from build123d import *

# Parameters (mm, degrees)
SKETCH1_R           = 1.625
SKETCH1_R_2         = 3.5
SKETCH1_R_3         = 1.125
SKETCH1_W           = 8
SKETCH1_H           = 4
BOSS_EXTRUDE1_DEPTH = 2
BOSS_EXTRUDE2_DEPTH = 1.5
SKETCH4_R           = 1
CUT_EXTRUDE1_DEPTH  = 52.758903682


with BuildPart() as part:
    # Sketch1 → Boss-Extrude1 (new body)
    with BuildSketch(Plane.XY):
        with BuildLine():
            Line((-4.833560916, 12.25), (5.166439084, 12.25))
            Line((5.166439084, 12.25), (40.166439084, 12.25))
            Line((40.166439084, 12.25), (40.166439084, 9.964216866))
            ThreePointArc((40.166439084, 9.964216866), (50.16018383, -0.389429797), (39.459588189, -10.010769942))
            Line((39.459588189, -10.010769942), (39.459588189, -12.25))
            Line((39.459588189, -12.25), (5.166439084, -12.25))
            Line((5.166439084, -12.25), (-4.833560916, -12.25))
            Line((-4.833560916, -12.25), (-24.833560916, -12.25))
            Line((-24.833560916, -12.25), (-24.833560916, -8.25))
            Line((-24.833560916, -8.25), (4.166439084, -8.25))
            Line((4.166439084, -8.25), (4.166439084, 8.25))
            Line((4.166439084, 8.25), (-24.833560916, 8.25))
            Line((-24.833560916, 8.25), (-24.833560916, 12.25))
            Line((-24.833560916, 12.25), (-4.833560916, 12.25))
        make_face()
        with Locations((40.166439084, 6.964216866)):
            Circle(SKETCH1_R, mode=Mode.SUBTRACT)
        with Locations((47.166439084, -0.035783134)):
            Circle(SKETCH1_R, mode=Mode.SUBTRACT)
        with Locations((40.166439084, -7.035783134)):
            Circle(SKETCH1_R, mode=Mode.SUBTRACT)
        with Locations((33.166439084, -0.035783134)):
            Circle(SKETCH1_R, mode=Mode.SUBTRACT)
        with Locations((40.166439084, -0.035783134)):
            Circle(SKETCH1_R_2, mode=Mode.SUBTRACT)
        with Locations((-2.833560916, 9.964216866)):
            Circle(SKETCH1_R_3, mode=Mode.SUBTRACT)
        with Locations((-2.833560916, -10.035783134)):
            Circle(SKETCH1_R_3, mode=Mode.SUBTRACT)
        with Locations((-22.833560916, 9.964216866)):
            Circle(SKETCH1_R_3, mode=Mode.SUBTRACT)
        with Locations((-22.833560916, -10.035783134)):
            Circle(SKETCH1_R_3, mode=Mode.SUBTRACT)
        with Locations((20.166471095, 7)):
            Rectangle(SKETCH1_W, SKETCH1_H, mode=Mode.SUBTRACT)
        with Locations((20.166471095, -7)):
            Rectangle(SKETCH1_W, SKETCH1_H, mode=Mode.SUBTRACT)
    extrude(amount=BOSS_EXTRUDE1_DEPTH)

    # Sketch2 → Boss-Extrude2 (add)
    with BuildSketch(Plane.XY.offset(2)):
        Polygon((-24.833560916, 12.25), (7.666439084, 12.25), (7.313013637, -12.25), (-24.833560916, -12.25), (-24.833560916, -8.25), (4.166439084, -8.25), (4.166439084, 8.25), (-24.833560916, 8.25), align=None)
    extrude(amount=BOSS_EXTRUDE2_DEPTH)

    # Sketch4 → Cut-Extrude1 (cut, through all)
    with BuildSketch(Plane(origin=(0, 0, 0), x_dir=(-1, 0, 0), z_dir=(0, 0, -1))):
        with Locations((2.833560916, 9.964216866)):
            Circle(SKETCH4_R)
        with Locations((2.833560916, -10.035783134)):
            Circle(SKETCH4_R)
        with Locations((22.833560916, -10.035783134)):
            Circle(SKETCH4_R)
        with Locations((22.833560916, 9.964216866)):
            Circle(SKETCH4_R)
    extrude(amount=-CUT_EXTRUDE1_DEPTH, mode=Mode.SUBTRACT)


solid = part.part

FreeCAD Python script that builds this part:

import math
import FreeCAD as App
import Part
import Sketcher


def add_polygon(sketch, points):
    """Adds a closed chain of lines whose ends are joined by coincident constraints."""
    first, n = sketch.GeometryCount, len(points)
    for a, b in zip(points, points[1:] + points[:1]):
        sketch.addGeometry(Part.LineSegment(App.Vector(*a, 0), App.Vector(*b, 0)), False)
    for i in range(n):
        sketch.addConstraint(Sketcher.Constraint("Coincident", first + i, 2, first + (i + 1) % n, 1))

doc = App.newDocument("Part")
body = doc.addObject("PartDesign::Body", "Body")

# Sketch on XY plane
sketch1 = doc.addObject("Sketcher::SketchObject", "Sketch")
body.addObject(sketch1)
sketch1.AttachmentSupport = (doc.XY_Plane, [""])
sketch1.MapMode = "FlatFace"
sketch1.addGeometry(Part.LineSegment(App.Vector(40.2, 10, 0), App.Vector(40.2, 12.2, 0)), False)  # 0
sketch1.addGeometry(Part.LineSegment(App.Vector(40.2, 12.2, 0), App.Vector(-24.8, 12.2, 0)), False)  # 1
sketch1.addGeometry(Part.LineSegment(App.Vector(-24.8, 12.2, 0), App.Vector(-24.8, 8.2, 0)), False)  # 2
sketch1.addGeometry(Part.LineSegment(App.Vector(-24.8, 8.2, 0), App.Vector(4.2, 8.2, 0)), False)  # 3
sketch1.addGeometry(Part.LineSegment(App.Vector(4.2, 8.2, 0), App.Vector(4.2, -8.2, 0)), False)  # 4
sketch1.addGeometry(Part.LineSegment(App.Vector(4.2, -8.2, 0), App.Vector(-24.8, -8.2, 0)), False)  # 5
sketch1.addGeometry(Part.LineSegment(App.Vector(-24.8, -8.2, 0), App.Vector(-24.8, -12.2, 0)), False)  # 6
sketch1.addGeometry(Part.LineSegment(App.Vector(-24.8, -12.2, 0), App.Vector(39.5, -12.2, 0)), False)  # 7
sketch1.addGeometry(Part.LineSegment(App.Vector(39.5, -12.2, 0), App.Vector(39.5, -10, 0)), False)  # 8
sketch1.addGeometry(Part.ArcOfCircle(Part.Circle(App.Vector(40.2, 0, 0), App.Vector(0, 0, 1), 10), math.radians(-94), math.radians(90)), False)  # 9
sketch1.addGeometry(Part.Circle(App.Vector(40.2, -7, 0), App.Vector(0, 0, 1), 1.6), False)  # 10
add_polygon(sketch1, [(16.2, -9), (16.2, -5), (24.2, -5), (24.2, -9)])  # lines 11-14
sketch1.addGeometry(Part.Circle(App.Vector(-2.8, -10, 0), App.Vector(0, 0, 1), 1.1), False)  # 15
sketch1.addGeometry(Part.Circle(App.Vector(-22.8, -10, 0), App.Vector(0, 0, 1), 1.1), False)  # 16
sketch1.addGeometry(Part.Circle(App.Vector(47.2, 0, 0), App.Vector(0, 0, 1), 1.6), False)  # 17
sketch1.addGeometry(Part.Circle(App.Vector(40.2, 0, 0), App.Vector(0, 0, 1), 3.5), False)  # 18
sketch1.addGeometry(Part.Circle(App.Vector(33.2, 0, 0), App.Vector(0, 0, 1), 1.6), False)  # 19
sketch1.addGeometry(Part.Circle(App.Vector(40.2, 7, 0), App.Vector(0, 0, 1), 1.6), False)  # 20
add_polygon(sketch1, [(16.2, 5), (16.2, 9), (24.2, 9), (24.2, 5)])  # lines 21-24
sketch1.addGeometry(Part.Circle(App.Vector(-2.8, 10, 0), App.Vector(0, 0, 1), 1.1), False)  # 25
sketch1.addGeometry(Part.Circle(App.Vector(-22.8, 10, 0), App.Vector(0, 0, 1), 1.1), False)  # 26
sketch1.addConstraint([
    Sketcher.Constraint("Coincident", 0, 2, 1, 1),
    Sketcher.Constraint("Coincident", 1, 2, 2, 1),
    Sketcher.Constraint("Coincident", 2, 2, 3, 1),
    Sketcher.Constraint("Coincident", 3, 2, 4, 1),
    Sketcher.Constraint("Coincident", 4, 2, 5, 1),
    Sketcher.Constraint("Coincident", 5, 2, 6, 1),
    Sketcher.Constraint("Coincident", 6, 2, 7, 1),
    Sketcher.Constraint("Coincident", 7, 2, 8, 1),
    Sketcher.Constraint("Coincident", 8, 2, 9, 1),
    Sketcher.Constraint("Coincident", 9, 2, 0, 1),
    Sketcher.Constraint("Vertical", 0),
    Sketcher.Constraint("Horizontal", 1),
    Sketcher.Constraint("Vertical", 2),
    Sketcher.Constraint("Horizontal", 3),
    Sketcher.Constraint("Vertical", 4),
    Sketcher.Constraint("Horizontal", 5),
    Sketcher.Constraint("Vertical", 6),
    Sketcher.Constraint("Horizontal", 7),
    Sketcher.Constraint("Vertical", 8),
    Sketcher.Constraint("Vertical", 11),
    Sketcher.Constraint("Horizontal", 12),
    Sketcher.Constraint("Vertical", 13),
    Sketcher.Constraint("Horizontal", 14),
    Sketcher.Constraint("Vertical", 21),
    Sketcher.Constraint("Horizontal", 22),
    Sketcher.Constraint("Vertical", 23),
    Sketcher.Constraint("Horizontal", 24),
    Sketcher.Constraint("Coincident", 18, 3, 9, 3),
    Sketcher.Constraint("Equal", 15, 16),
    Sketcher.Constraint("Equal", 10, 17),
    Sketcher.Constraint("Equal", 17, 19),
    Sketcher.Constraint("Equal", 19, 20),
    Sketcher.Constraint("Equal", 16, 25),
    Sketcher.Constraint("Equal", 25, 26),
    Sketcher.Constraint("Symmetric", 2, 2, 5, 2, -1),
    Sketcher.Constraint("Symmetric", 14, 2, 21, 2, -1),
    Sketcher.Constraint("Symmetric", 12, 2, 23, 2, -1),
    Sketcher.Constraint("Horizontal", 15, 3, 16, 3),
    Sketcher.Constraint("Horizontal", 9, 3, 17, 3),
    Sketcher.Constraint("Horizontal", 18, 3, 19, 3),
    Sketcher.Constraint("Horizontal", 25, 3, 26, 3),
    Sketcher.Constraint("Horizontal", 26, 3, 9, 2),
    Sketcher.Constraint("Vertical", 9, 3, 10, 3),
    Sketcher.Constraint("Vertical", 18, 3, 20, 3),
    Sketcher.Constraint("Vertical", 15, 3, 25, 3),
    Sketcher.Constraint("Vertical", 16, 3, 26, 3),
    Sketcher.Constraint("Vertical", 20, 3, 0, 2),
    Sketcher.Constraint("Equal", 2, 6),
    Sketcher.Constraint("Equal", 6, 11),
    Sketcher.Constraint("Diameter", 18, 7.0),
    Sketcher.Constraint("Radius", 9, 10.0),
    Sketcher.Constraint("Diameter", 10, 3.25),
    Sketcher.Constraint("Diameter", 15, 2.25),
    Sketcher.Constraint("DistanceX", 1, 2, 1, 1, 65.0),
    Sketcher.Constraint("DistanceX", 3, 1, 3, 2, 29.0),
    Sketcher.Constraint("DistanceX", 12, 1, 12, 2, 8.0),
    Sketcher.Constraint("DistanceY", 2, 2, 2, 1, 4.0),
    Sketcher.Constraint("DistanceY", 4, 2, 4, 1, 16.5),
    Sketcher.Constraint("DistanceY", 11, 2, -1, 1, 5.0),
    Sketcher.Constraint("DistanceY", 10, 3, 9, 3, 7.0),
    Sketcher.Constraint("DistanceX", 15, 3, 10, 3, 43.0),
    Sketcher.Constraint("DistanceY", 15, 3, 10, 3, 3.0),
    Sketcher.Constraint("DistanceX", 16, 3, 15, 3, 20.0),
    Sketcher.Constraint("DistanceX", 9, 3, 17, 3, 7.0),
    Sketcher.Constraint("DistanceX", 19, 3, 9, 3, 7.0),
    Sketcher.Constraint("DistanceY", 9, 3, 20, 3, 7.0),
    Sketcher.Constraint("DistanceX", 7, 1, 7, 2, 64.293149),
    Sketcher.Constraint("DistanceY", 8, 1, 8, 2, 2.23923),
    Sketcher.Constraint("DistanceX", -1, 1, 9, 3, 40.166439),
    Sketcher.Constraint("DistanceX", -1, 1, 11, 2, 16.166471),
])
pad1 = doc.addObject("PartDesign::Pad", "Pad")
body.addObject(pad1)
pad1.Profile = sketch1
pad1.Length = 2

# Sketch on XY plane
sketch2 = doc.addObject("Sketcher::SketchObject", "Sketch001")
body.addObject(sketch2)
sketch2.AttachmentSupport = (doc.XY_Plane, [""])
sketch2.MapMode = "FlatFace"
sketch2.AttachmentOffset = App.Placement(App.Vector(0, 0, 2), App.Rotation())
add_polygon(sketch2, [(7.7, 12.2), (-24.8, 12.2), (-24.8, 8.2), (4.2, 8.2), (4.2, -8.2), (-24.8, -8.2), (-24.8, -12.2), (7.3, -12.2)])  # lines 0-7
sketch2.addConstraint([
    Sketcher.Constraint("Horizontal", 0),
    Sketcher.Constraint("Vertical", 1),
    Sketcher.Constraint("Horizontal", 2),
    Sketcher.Constraint("Vertical", 3),
    Sketcher.Constraint("Horizontal", 4),
    Sketcher.Constraint("Vertical", 5),
    Sketcher.Constraint("Horizontal", 6),
    Sketcher.Constraint("Symmetric", 1, 2, 4, 2, -1),
    Sketcher.Constraint("Equal", 1, 5),
    Sketcher.Constraint("DistanceX", 2, 1, 2, 2, 29.0),
    Sketcher.Constraint("DistanceY", 1, 2, 1, 1, 4.0),
    Sketcher.Constraint("DistanceX", 0, 2, 0, 1, 32.5),
    Sketcher.Constraint("DistanceY", 3, 2, 3, 1, 16.5),
    Sketcher.Constraint("Distance", 7, 24.502549),
    Sketcher.Constraint("DistanceX", 0, 2, -1, 1, 24.833561),
])
pad2 = doc.addObject("PartDesign::Pad", "Pad001")
body.addObject(pad2)
pad2.Profile = sketch2
pad2.Length = 1.5

# Sketch on XY plane
sketch3 = doc.addObject("Sketcher::SketchObject", "Sketch002")
body.addObject(sketch3)
sketch3.AttachmentSupport = (doc.XY_Plane, [""])
sketch3.MapMode = "FlatFace"
sketch3.addGeometry([
    Part.Circle(App.Vector(-2.8, 10, 0), App.Vector(0, 0, 1), 1),
    Part.Circle(App.Vector(-2.8, -10, 0), App.Vector(0, 0, 1), 1),
    Part.Circle(App.Vector(-22.8, -10, 0), App.Vector(0, 0, 1), 1),
    Part.Circle(App.Vector(-22.8, 10, 0), App.Vector(0, 0, 1), 1),
], False)
sketch3.addConstraint([
    Sketcher.Constraint("Equal", 0, 1),
    Sketcher.Constraint("Equal", 1, 2),
    Sketcher.Constraint("Equal", 2, 3),
    Sketcher.Constraint("Horizontal", 1, 3, 2, 3),
    Sketcher.Constraint("Horizontal", 0, 3, 3, 3),
    Sketcher.Constraint("Vertical", 0, 3, 1, 3),
    Sketcher.Constraint("Vertical", 2, 3, 3, 3),
    Sketcher.Constraint("Diameter", 0, 2.0),
    Sketcher.Constraint("DistanceY", 1, 3, 0, 3, 20.0),
    Sketcher.Constraint("DistanceX", 2, 3, 1, 3, 20.0),
    Sketcher.Constraint("DistanceX", 0, 3, -1, 1, 2.833561),
    Sketcher.Constraint("DistanceY", -1, 1, 0, 3, 9.964217),
])
pocket1 = doc.addObject("PartDesign::Pocket", "Pocket")
body.addObject(pocket1)
pocket1.Profile = sketch3
pocket1.Type = "ThroughAll"
pocket1.Reversed = True

doc.recompute()
